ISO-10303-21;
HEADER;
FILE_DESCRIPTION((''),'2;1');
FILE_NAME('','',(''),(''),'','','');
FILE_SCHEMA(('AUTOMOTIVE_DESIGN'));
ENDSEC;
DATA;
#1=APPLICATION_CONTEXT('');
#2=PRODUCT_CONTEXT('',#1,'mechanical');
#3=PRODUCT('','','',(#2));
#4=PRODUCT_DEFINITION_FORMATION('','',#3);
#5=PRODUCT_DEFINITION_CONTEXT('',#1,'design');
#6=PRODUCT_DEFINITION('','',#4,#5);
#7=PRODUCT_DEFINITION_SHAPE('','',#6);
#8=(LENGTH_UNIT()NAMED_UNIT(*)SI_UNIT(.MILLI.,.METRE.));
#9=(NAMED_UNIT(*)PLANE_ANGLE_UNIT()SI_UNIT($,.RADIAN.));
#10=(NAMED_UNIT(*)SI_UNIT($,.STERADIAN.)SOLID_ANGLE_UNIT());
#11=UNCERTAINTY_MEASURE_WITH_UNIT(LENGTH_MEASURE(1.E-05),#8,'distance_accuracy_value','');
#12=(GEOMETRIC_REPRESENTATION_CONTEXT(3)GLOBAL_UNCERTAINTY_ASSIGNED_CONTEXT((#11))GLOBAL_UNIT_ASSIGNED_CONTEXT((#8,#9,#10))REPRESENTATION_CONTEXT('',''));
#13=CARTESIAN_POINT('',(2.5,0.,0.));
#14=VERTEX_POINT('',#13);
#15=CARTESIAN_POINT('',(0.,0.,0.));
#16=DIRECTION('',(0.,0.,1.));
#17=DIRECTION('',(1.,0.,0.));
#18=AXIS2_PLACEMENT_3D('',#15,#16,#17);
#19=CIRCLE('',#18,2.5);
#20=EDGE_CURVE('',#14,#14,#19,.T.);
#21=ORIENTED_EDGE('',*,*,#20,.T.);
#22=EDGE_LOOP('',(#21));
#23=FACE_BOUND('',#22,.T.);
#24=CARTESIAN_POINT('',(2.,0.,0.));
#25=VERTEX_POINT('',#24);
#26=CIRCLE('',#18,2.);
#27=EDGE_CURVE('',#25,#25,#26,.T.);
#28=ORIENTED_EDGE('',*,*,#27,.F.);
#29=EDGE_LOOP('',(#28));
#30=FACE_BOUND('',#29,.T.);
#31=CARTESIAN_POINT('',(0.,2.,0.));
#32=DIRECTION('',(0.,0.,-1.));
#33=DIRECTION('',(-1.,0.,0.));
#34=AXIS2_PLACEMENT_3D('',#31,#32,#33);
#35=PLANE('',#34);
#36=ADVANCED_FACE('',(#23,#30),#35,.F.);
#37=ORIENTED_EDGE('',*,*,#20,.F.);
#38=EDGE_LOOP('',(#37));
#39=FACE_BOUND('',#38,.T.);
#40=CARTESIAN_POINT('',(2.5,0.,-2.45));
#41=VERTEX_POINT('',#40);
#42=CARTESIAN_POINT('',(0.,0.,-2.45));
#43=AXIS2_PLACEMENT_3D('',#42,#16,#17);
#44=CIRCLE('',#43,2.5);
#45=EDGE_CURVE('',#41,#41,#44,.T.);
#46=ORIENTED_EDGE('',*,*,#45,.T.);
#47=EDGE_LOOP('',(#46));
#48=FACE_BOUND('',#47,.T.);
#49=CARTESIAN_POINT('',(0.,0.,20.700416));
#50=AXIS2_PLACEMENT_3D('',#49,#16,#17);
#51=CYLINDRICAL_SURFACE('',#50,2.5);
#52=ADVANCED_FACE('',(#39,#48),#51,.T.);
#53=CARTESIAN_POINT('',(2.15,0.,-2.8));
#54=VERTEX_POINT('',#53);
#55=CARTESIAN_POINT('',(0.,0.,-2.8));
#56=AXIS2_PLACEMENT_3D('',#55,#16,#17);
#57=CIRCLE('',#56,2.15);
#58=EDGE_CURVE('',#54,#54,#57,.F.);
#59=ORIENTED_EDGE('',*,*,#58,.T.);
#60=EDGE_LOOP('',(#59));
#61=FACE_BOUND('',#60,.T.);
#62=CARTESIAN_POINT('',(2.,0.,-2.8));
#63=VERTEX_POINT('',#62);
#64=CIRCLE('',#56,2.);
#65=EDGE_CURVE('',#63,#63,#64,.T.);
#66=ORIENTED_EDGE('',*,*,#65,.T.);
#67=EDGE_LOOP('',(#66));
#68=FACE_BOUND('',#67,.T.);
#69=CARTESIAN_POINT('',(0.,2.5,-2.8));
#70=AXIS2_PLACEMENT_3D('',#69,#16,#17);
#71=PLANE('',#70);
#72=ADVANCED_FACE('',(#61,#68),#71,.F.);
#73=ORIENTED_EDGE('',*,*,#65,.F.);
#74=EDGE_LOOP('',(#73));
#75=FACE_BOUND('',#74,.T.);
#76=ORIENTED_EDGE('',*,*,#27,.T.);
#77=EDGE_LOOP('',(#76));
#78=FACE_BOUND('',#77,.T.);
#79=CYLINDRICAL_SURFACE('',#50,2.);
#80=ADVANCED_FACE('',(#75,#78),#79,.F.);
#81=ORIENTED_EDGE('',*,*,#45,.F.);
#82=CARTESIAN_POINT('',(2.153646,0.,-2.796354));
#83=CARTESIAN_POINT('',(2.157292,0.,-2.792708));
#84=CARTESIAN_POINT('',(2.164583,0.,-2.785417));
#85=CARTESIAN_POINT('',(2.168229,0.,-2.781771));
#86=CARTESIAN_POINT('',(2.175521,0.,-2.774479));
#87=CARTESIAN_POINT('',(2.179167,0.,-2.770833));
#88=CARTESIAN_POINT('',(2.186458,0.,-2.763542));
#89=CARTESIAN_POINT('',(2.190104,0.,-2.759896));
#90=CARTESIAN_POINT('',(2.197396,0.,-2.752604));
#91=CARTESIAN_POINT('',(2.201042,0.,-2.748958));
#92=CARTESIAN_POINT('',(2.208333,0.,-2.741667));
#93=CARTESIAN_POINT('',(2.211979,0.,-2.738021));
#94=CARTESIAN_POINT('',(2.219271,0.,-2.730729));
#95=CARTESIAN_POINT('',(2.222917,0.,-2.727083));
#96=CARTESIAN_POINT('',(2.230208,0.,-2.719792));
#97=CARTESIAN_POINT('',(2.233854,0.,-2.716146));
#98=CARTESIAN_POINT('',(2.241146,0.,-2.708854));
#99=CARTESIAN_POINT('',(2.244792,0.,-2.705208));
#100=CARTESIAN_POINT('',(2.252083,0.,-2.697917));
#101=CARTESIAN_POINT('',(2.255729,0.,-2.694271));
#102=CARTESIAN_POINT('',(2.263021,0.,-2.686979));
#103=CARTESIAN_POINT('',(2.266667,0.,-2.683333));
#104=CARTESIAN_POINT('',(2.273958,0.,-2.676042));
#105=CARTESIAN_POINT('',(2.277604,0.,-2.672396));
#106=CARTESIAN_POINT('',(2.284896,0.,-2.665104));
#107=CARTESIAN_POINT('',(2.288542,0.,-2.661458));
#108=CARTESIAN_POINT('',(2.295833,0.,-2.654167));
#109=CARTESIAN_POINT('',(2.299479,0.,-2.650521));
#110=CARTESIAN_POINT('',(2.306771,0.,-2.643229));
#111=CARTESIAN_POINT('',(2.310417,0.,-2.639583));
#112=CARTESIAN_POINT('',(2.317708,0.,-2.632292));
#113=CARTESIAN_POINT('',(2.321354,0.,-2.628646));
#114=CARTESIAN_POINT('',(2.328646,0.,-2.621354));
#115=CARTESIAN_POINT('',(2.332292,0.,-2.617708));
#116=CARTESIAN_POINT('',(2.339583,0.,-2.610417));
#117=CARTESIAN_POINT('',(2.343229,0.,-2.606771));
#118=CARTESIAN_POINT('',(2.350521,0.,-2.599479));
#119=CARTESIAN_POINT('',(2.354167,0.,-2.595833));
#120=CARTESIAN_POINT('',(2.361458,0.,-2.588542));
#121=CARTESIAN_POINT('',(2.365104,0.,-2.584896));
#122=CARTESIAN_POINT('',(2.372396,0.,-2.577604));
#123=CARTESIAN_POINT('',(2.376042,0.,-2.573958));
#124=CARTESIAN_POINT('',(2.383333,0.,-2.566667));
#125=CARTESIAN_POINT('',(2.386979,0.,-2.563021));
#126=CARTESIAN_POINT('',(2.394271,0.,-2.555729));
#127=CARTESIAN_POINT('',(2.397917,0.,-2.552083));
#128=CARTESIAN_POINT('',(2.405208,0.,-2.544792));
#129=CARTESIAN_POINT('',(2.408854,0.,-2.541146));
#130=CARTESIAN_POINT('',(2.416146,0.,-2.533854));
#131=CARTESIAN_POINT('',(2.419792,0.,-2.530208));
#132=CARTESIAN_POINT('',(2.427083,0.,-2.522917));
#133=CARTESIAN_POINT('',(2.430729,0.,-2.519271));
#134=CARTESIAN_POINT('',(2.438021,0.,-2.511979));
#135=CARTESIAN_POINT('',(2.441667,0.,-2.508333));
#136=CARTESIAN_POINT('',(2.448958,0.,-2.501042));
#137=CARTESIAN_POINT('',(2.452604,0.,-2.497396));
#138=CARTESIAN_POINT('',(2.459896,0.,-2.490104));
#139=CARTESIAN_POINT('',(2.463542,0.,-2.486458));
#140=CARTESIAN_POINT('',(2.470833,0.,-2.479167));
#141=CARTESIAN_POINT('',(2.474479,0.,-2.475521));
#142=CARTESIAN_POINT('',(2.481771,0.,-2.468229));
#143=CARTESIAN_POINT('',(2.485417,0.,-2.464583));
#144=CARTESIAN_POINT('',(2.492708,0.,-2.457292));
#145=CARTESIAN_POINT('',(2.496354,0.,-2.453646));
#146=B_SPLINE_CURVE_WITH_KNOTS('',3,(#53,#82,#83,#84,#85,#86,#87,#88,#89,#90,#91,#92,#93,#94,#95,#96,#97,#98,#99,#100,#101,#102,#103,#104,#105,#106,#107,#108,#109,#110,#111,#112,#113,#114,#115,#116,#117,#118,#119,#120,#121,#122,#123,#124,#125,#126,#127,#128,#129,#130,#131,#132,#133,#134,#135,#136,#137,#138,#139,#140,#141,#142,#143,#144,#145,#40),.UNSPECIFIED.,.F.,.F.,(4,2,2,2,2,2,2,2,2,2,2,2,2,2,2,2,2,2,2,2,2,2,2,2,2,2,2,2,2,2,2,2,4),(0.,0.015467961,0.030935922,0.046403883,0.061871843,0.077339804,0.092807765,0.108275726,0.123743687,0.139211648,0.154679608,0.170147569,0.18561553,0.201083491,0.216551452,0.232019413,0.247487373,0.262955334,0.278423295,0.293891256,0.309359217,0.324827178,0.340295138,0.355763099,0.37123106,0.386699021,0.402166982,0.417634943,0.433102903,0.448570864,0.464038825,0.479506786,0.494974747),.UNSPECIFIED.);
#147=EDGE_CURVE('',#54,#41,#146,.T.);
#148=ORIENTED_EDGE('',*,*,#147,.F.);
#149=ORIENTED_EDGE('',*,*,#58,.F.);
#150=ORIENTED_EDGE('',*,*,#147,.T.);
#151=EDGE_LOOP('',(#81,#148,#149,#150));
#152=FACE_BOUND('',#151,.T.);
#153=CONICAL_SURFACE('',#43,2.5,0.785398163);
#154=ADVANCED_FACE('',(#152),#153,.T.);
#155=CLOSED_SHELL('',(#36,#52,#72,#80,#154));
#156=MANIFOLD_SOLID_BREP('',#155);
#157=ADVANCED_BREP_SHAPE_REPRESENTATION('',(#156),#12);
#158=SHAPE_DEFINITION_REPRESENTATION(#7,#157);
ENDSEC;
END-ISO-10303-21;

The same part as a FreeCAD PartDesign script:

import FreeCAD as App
import Part
import Sketcher

V = App.Vector


def edges_at(feature, points):
    """Names of the edges that pass closest to the given points."""
    edges = feature.Shape.Edges
    near = lambda p: min(range(len(edges)), key=lambda i: edges[i].distToShape(Part.Vertex(*p))[0])
    return sorted({f"Edge{near(p) + 1}" for p in points})


def add_polygon(sketch, points):
    """Adds a closed chain of lines whose ends are joined by coincident constraints."""
    first, n = sketch.GeometryCount, len(points)
    for a, b in zip(points, points[1:] + points[:1]):
        sketch.addGeometry(Part.LineSegment(App.Vector(*a, 0), App.Vector(*b, 0)), False)
    for i in range(n):
        sketch.addConstraint(Sketcher.Constraint("Coincident", first + i, 2, first + (i + 1) % n, 1))

doc = App.newDocument("Part")
body = doc.addObject("PartDesign::Body", "Body")

# Sketch on YZ plane
sketch1 = body.newObject("Sketcher::SketchObject", "Sketch")
sketch1.AttachmentSupport = (doc.getObject("YZ_Plane"), [""])
sketch1.MapMode = "FlatFace"
add_polygon(sketch1, [(2.5, -2.8), (2.5, 0), (2, 0), (2, -2), (0.5, -2), (0.5, -4), (1.5, -4), (1.5, -2.8)])  # lines 0-7
sketch1.addConstraint([
    Sketcher.Constraint("Vertical", 0),
    Sketcher.Constraint("Horizontal", 1),
    Sketcher.Constraint("Vertical", 2),
    Sketcher.Constraint("Horizontal", 3),
    Sketcher.Constraint("Vertical", 4),
    Sketcher.Constraint("Horizontal", 5),
    Sketcher.Constraint("Vertical", 6),
    Sketcher.Constraint("Horizontal", 7),
    Sketcher.Constraint("PointOnObject", 0, 2, -1),
    Sketcher.Constraint("Equal", 5, 7),
    Sketcher.Constraint("Equal", 2, 4),
    Sketcher.Constraint("DistanceX", 5, 1, 5, 2, 1.0),
    Sketcher.Constraint("DistanceY", 2, 2, 2, 1, 2.0),
    Sketcher.Constraint("DistanceX", 1, 2, 1, 1, 0.5),
    Sketcher.Constraint("DistanceY", 0, 1, 0, 2, 2.8),
    Sketcher.Constraint("DistanceX", -1, 1, 1, 2, 2.0),
])
revolution = body.newObject("PartDesign::Revolution", "Revolution")
revolution.Profile = sketch1
revolution.ReferenceAxis = (sketch1, ["V_Axis"])
revolution.Angle = 360
doc.recompute()

chamfer = body.newObject("PartDesign::Chamfer", "Chamfer")
chamfer.Base = (revolution, edges_at(revolution, [(-2.5, 0, -2.8)]))
chamfer.Size = 0.35

# Sketch on XY plane
sketch2 = body.newObject("Sketcher::SketchObject", "Sketch001")
sketch2.AttachmentSupport = (doc.getObject("XY_Plane"), [""])
sketch2.MapMode = "FlatFace"
sketch2.AttachmentOffset = App.Placement(V(0, 0, -2), App.Rotation())
sketch2.addGeometry(Part.Circle(V(0, 0, 0), V(0, 0, 1), 2), False)
sketch2.addConstraint([
    Sketcher.Constraint("Coincident", 0, 3, -1, 1),
    Sketcher.Constraint("Diameter", 0, 4.0),
])
pocket1 = body.newObject("PartDesign::Pocket", "Pocket")
pocket1.Profile = sketch2
pocket1.Type = "ThroughAll"

doc.recompute()
